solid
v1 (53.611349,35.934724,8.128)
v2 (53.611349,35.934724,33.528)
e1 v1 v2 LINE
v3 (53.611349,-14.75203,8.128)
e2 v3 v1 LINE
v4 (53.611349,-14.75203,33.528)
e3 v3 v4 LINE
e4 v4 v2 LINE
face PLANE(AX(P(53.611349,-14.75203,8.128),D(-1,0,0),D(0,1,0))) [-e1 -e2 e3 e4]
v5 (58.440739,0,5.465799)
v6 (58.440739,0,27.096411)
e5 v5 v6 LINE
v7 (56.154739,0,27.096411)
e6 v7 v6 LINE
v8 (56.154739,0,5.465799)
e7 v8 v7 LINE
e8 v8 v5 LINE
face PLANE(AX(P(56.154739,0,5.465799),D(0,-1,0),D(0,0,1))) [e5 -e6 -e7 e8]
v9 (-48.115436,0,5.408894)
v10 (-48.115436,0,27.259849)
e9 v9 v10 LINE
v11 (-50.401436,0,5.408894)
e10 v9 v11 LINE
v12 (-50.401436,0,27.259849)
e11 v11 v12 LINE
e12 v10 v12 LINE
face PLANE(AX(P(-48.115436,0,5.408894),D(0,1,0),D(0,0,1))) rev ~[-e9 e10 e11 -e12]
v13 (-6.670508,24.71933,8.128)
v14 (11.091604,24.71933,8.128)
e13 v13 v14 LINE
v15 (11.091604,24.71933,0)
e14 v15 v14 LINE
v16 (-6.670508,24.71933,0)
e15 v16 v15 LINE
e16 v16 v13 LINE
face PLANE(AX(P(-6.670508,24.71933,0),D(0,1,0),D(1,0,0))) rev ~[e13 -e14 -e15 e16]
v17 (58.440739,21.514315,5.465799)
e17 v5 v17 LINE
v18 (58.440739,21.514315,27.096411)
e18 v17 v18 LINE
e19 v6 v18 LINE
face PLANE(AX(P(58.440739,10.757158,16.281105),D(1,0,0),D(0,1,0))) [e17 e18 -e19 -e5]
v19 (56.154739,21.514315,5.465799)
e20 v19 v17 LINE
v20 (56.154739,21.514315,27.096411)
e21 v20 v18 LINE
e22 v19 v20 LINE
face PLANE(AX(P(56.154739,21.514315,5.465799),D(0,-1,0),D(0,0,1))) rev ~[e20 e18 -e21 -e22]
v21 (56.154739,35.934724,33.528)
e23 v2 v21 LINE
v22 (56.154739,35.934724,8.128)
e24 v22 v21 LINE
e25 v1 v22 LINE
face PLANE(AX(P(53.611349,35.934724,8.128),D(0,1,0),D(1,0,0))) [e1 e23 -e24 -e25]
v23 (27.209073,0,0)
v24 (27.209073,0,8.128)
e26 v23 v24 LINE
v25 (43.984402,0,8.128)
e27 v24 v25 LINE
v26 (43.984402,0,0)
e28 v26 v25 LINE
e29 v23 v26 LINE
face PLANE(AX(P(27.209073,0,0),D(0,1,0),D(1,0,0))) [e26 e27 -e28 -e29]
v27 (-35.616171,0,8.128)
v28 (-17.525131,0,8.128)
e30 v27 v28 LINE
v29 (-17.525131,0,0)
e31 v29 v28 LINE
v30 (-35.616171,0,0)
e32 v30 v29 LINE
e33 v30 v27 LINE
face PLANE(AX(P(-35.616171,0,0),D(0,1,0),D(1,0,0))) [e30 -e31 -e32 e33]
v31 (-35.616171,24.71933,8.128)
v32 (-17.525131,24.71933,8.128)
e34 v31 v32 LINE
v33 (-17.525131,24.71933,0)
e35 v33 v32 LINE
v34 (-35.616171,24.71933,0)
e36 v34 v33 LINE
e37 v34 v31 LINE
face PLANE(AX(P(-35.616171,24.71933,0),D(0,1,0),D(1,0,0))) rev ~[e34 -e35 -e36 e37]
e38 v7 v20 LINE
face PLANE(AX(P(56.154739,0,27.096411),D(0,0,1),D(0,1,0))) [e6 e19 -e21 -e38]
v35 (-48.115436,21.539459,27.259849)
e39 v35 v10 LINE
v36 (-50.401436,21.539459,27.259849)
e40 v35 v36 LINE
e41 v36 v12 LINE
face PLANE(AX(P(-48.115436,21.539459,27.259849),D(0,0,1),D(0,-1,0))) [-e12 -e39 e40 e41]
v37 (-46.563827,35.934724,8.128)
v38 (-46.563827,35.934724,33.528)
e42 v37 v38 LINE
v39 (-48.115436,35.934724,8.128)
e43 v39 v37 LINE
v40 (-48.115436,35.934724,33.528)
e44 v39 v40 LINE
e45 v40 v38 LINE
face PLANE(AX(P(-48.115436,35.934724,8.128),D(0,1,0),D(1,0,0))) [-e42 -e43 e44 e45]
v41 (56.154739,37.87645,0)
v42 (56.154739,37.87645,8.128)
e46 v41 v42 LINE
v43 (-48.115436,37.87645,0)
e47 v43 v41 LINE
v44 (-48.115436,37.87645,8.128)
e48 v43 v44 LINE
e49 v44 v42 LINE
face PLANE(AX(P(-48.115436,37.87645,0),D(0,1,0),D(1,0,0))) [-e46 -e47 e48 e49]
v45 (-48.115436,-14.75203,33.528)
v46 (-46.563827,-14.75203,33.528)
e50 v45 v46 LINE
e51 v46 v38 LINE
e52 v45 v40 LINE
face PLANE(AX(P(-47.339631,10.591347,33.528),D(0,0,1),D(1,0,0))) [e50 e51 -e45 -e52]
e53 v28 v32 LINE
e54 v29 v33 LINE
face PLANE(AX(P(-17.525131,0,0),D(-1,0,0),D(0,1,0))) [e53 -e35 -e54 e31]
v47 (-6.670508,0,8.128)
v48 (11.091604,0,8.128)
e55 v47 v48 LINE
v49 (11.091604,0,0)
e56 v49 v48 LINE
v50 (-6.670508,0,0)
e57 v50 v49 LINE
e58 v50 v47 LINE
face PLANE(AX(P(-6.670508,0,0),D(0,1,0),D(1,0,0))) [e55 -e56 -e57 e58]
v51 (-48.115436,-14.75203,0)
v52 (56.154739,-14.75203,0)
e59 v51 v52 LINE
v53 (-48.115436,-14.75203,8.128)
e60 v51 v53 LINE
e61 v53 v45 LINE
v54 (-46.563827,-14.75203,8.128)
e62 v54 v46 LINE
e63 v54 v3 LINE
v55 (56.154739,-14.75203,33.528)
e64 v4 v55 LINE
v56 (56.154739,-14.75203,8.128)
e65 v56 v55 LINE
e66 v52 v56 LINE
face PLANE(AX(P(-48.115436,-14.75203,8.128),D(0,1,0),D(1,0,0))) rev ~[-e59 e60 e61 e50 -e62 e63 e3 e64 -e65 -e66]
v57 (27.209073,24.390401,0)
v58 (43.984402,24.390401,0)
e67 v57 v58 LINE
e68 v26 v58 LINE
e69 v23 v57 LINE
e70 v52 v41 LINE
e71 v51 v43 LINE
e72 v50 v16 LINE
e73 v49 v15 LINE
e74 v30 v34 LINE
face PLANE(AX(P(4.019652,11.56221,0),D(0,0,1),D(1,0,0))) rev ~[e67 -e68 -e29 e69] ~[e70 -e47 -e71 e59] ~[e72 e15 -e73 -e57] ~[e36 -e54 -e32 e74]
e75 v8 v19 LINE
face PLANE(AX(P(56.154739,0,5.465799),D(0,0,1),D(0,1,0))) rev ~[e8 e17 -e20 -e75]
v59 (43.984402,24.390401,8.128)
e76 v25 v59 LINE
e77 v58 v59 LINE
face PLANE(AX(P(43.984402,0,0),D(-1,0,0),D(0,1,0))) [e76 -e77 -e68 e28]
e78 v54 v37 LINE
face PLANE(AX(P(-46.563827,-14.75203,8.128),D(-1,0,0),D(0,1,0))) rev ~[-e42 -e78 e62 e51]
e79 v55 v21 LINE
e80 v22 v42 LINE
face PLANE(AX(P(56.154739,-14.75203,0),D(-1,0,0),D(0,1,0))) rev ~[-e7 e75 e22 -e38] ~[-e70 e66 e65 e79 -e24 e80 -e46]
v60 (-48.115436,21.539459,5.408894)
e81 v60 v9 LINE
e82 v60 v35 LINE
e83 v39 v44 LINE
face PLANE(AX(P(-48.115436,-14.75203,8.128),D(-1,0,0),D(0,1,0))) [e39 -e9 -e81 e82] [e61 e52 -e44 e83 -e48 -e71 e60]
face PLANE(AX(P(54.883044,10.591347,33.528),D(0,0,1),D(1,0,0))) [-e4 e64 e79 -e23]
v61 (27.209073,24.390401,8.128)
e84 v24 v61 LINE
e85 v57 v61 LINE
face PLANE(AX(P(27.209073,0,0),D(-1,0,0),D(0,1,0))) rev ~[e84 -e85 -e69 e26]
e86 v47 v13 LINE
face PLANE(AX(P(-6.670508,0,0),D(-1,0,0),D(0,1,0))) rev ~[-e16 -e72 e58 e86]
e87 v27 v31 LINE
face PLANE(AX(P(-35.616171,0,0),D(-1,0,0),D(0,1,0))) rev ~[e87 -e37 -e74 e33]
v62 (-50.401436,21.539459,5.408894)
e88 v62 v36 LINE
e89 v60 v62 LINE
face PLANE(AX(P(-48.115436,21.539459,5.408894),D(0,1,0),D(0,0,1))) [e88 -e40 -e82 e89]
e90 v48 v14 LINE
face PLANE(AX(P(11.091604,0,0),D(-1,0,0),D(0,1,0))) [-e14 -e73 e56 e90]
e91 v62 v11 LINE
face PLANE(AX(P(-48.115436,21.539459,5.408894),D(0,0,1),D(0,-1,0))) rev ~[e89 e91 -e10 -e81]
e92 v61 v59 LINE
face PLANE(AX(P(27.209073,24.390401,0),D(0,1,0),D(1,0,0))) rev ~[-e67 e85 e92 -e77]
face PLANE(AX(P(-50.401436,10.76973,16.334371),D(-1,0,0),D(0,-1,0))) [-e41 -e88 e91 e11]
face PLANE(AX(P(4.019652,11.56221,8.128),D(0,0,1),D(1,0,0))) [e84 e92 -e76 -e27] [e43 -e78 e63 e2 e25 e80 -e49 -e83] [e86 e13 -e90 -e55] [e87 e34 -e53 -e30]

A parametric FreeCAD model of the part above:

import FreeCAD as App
import Part
import Sketcher
Q = App.Units.Quantity

doc = App.newDocument("Part")
body = doc.addObject("PartDesign::Body", "Body")

# Sketch on XY plane
sketch1 = body.newObject("Sketcher::SketchObject", "Sketch")
sketch1.AttachmentSupport = (doc.getObject("XY_Plane"), [""])
sketch1.MapMode = "FlatFace"
sketch1.addGeometry(Part.LineSegment(App.Vector(-48.115436, 37.87645, 0), App.Vector(-48.115436, -14.75203, 0)), False)
sketch1.addGeometry(Part.LineSegment(App.Vector(-48.115436, -14.75203, 0), App.Vector(56.154739, -14.75203, 0)), False)
sketch1.addGeometry(Part.LineSegment(App.Vector(56.154739, -14.75203, 0), App.Vector(56.154739, 37.87645, 0)), False)
sketch1.addGeometry(Part.LineSegment(App.Vector(56.154739, 37.87645, 0), App.Vector(-48.115436, 37.87645, 0)), False)
sketch1.addGeometry(Part.LineSegment(App.Vector(43.984402, 0, 0), App.Vector(27.209073, 0, 0)), False)
sketch1.addGeometry(Part.LineSegment(App.Vector(27.209073, 0, 0), App.Vector(27.209073, 24.390401, 0)), False)
sketch1.addGeometry(Part.LineSegment(App.Vector(27.209073, 24.390401, 0), App.Vector(43.984402, 24.390401, 0)), False)
sketch1.addGeometry(Part.LineSegment(App.Vector(43.984402, 24.390401, 0), App.Vector(43.984402, 0, 0)), False)
sketch1.addGeometry(Part.LineSegment(App.Vector(-17.525131, 0, 0), App.Vector(-35.616171, 0, 0)), False)
sketch1.addGeometry(Part.LineSegment(App.Vector(-35.616171, 0, 0), App.Vector(-35.616171, 24.71933, 0)), False)
sketch1.addGeometry(Part.LineSegment(App.Vector(-35.616171, 24.71933, 0), App.Vector(-17.525131, 24.71933, 0)), False)
sketch1.addGeometry(Part.LineSegment(App.Vector(-17.525131, 24.71933, 0), App.Vector(-17.525131, 0, 0)), False)
sketch1.addGeometry(Part.LineSegment(App.Vector(11.091604, 0, 0), App.Vector(-6.670508, 0, 0)), False)
sketch1.addGeometry(Part.LineSegment(App.Vector(-6.670508, 0, 0), App.Vector(-6.670508, 24.71933, 0)), False)
sketch1.addGeometry(Part.LineSegment(App.Vector(-6.670508, 24.71933, 0), App.Vector(11.091604, 24.71933, 0)), False)
sketch1.addGeometry(Part.LineSegment(App.Vector(11.091604, 24.71933, 0), App.Vector(11.091604, 0, 0)), False)
sketch1.addConstraint(Sketcher.Constraint("Coincident", 0, 2, 1, 1))
sketch1.addConstraint(Sketcher.Constraint("Coincident", 1, 2, 2, 1))
sketch1.addConstraint(Sketcher.Constraint("Coincident", 2, 2, 3, 1))
sketch1.addConstraint(Sketcher.Constraint("Coincident", 3, 2, 0, 1))
sketch1.addConstraint(Sketcher.Constraint("Coincident", 4, 2, 5, 1))
sketch1.addConstraint(Sketcher.Constraint("Coincident", 5, 2, 6, 1))
sketch1.addConstraint(Sketcher.Constraint("Coincident", 6, 2, 7, 1))
sketch1.addConstraint(Sketcher.Constraint("Coincident", 7, 2, 4, 1))
sketch1.addConstraint(Sketcher.Constraint("Coincident", 8, 2, 9, 1))
sketch1.addConstraint(Sketcher.Constraint("Coincident", 9, 2, 10, 1))
sketch1.addConstraint(Sketcher.Constraint("Coincident", 10, 2, 11, 1))
sketch1.addConstraint(Sketcher.Constraint("Coincident", 11, 2, 8, 1))
sketch1.addConstraint(Sketcher.Constraint("Coincident", 12, 2, 13, 1))
sketch1.addConstraint(Sketcher.Constraint("Coincident", 13, 2, 14, 1))
sketch1.addConstraint(Sketcher.Constraint("Coincident", 14, 2, 15, 1))
sketch1.addConstraint(Sketcher.Constraint("Coincident", 15, 2, 12, 1))
sketch1.addConstraint(Sketcher.Constraint("Vertical", 0))
sketch1.addConstraint(Sketcher.Constraint("Horizontal", 1))
sketch1.addConstraint(Sketcher.Constraint("Vertical", 2))
sketch1.addConstraint(Sketcher.Constraint("Horizontal", 3))
sketch1.addConstraint(Sketcher.Constraint("Horizontal", 4))
sketch1.addConstraint(Sketcher.Constraint("Vertical", 5))
sketch1.addConstraint(Sketcher.Constraint("Horizontal", 6))
sketch1.addConstraint(Sketcher.Constraint("Vertical", 7))
sketch1.addConstraint(Sketcher.Constraint("Horizontal", 8))
sketch1.addConstraint(Sketcher.Constraint("Vertical", 9))
sketch1.addConstraint(Sketcher.Constraint("Horizontal", 10))
sketch1.addConstraint(Sketcher.Constraint("Vertical", 11))
sketch1.addConstraint(Sketcher.Constraint("Horizontal", 12))
sketch1.addConstraint(Sketcher.Constraint("Vertical", 13))
sketch1.addConstraint(Sketcher.Constraint("Horizontal", 14))
sketch1.addConstraint(Sketcher.Constraint("Vertical", 15))
sketch1.addConstraint(Sketcher.Constraint("PointOnObject", 4, 2, -1))
sketch1.addConstraint(Sketcher.Constraint("PointOnObject", 8, 2, -1))
sketch1.addConstraint(Sketcher.Constraint("PointOnObject", 12, 2, -1))
sketch1.addConstraint(Sketcher.Constraint("Horizontal", 10, 2, 13, 2))
sketch1.addConstraint(Sketcher.Constraint("DistanceY", 5, 1, 5, 2, 24.390401))
sketch1.addConstraint(Sketcher.Constraint("DistanceX", 4, 2, 4, 1, 16.775329))
sketch1.addConstraint(Sketcher.Constraint("DistanceX", 8, 2, 8, 1, 18.09104))
sketch1.addConstraint(Sketcher.Constraint("DistanceX", 12, 2, 12, 1, 17.762112))
sketch1.addConstraint(Sketcher.Constraint("DistanceY", 0, 2, 0, 1, 52.62848))
sketch1.addConstraint(Sketcher.Constraint("DistanceY", 9, 1, 9, 2, 24.71933))
sketch1.addConstraint(Sketcher.Constraint("DistanceX", -1, 1, 6, 2, 43.984402))
sketch1.addConstraint(Sketcher.Constraint("DistanceX", 1, 1, 1, 2, 104.270175))
sketch1.addConstraint(Sketcher.Constraint("DistanceY", 0, 2, -1, 1, 14.75203))
sketch1.addConstraint(Sketcher.Constraint("DistanceX", -1, 1, 1, 2, 56.154739))
sketch1.addConstraint(Sketcher.Constraint("DistanceX", 8, 2, -1, 1, 35.616171))
sketch1.addConstraint(Sketcher.Constraint("DistanceX", 12, 2, -1, 1, 6.670508))
pad1 = body.newObject("PartDesign::Pad", "Pad")
pad1.Profile = sketch1
pad1.Length = Q("0.32 in")

# Sketch on XY plane
sketch2 = body.newObject("Sketcher::SketchObject", "Sketch001")
sketch2.AttachmentSupport = (doc.getObject("XY_Plane"), [""])
sketch2.MapMode = "FlatFace"
sketch2.AttachmentOffset = App.Placement(App.Vector(0, 0, 0.32 * 25.4), App.Rotation())
sketch2.addGeometry(Part.LineSegment(App.Vector(-48.115436, 35.934724, 0), App.Vector(-48.115436, -14.75203, 0)), False)
sketch2.addGeometry(Part.LineSegment(App.Vector(-48.115436, -14.75203, 0), App.Vector(-46.563827, -14.75203, 0)), False)
sketch2.addGeometry(Part.LineSegment(App.Vector(-46.563827, -14.75203, 0), App.Vector(-46.563827, 35.934724, 0)), False)
sketch2.addGeometry(Part.LineSegment(App.Vector(-46.563827, 35.934724, 0), App.Vector(-48.115436, 35.934724, 0)), False)
sketch2.addGeometry(Part.LineSegment(App.Vector(53.611349, 35.934724, 0), App.Vector(53.611349, -14.75203, 0)), False)
sketch2.addGeometry(Part.LineSegment(App.Vector(53.611349, -14.75203, 0), App.Vector(56.154739, -14.75203, 0)), False)
sketch2.addGeometry(Part.LineSegment(App.Vector(56.154739, -14.75203, 0), App.Vector(56.154739, 35.934724, 0)), False)
sketch2.addGeometry(Part.LineSegment(App.Vector(56.154739, 35.934724, 0), App.Vector(53.611349, 35.934724, 0)), False)
sketch2.addConstraint(Sketcher.Constraint("Coincident", 0, 2, 1, 1))
sketch2.addConstraint(Sketcher.Constraint("Coincident", 1, 2, 2, 1))
sketch2.addConstraint(Sketcher.Constraint("Coincident", 2, 2, 3, 1))
sketch2.addConstraint(Sketcher.Constraint("Coincident", 3, 2, 0, 1))
sketch2.addConstraint(Sketcher.Constraint("Coincident", 4, 2, 5, 1))
sketch2.addConstraint(Sketcher.Constraint("Coincident", 5, 2, 6, 1))
sketch2.addConstraint(Sketcher.Constraint("Coincident", 6, 2, 7, 1))
sketch2.addConstraint(Sketcher.Constraint("Coincident", 7, 2, 4, 1))
sketch2.addConstraint(Sketcher.Constraint("Vertical", 0))
sketch2.addConstraint(Sketcher.Constraint("Horizontal", 1))
sketch2.addConstraint(Sketcher.Constraint("Vertical", 2))
sketch2.addConstraint(Sketcher.Constraint("Horizontal", 3))
sketch2.addConstraint(Sketcher.Constraint("Vertical", 4))
sketch2.addConstraint(Sketcher.Constraint("Horizontal", 5))
sketch2.addConstraint(Sketcher.Constraint("Vertical", 6))
sketch2.addConstraint(Sketcher.Constraint("Horizontal", 7))
sketch2.addConstraint(Sketcher.Constraint("Horizontal", 1, 2, 4, 2))
sketch2.addConstraint(Sketcher.Constraint("Horizontal", 3, 2, 6, 2))
sketch2.addConstraint(Sketcher.Constraint("DistanceX", 1, 1, 1, 2, 1.551609))
sketch2.addConstraint(Sketcher.Constraint("DistanceX", 5, 1, 5, 2, 2.54339))
sketch2.addConstraint(Sketcher.Constraint("DistanceY", 0, 2, 0, 1, 50.686754))
sketch2.addConstraint(Sketcher.Constraint("DistanceY", 0, 2, -1, 1, 14.75203))
sketch2.addConstraint(Sketcher.Constraint("DistanceX", -1, 1, 4, 2, 53.611349))
sketch2.addConstraint(Sketcher.Constraint("DistanceX", 0, 2, -1, 1, 48.115436))
pad2 = body.newObject("PartDesign::Pad", "Pad001")
pad2.Profile = sketch2
pad2.Length = Q("1 in")

# Sketch on YZ plane
sketch3 = body.newObject("Sketcher::SketchObject", "Sketch002")
sketch3.AttachmentSupport = (doc.getObject("YZ_Plane"), [""])
sketch3.MapMode = "FlatFace"
sketch3.AttachmentOffset = App.Placement(App.Vector(0, 0, 56.154739), App.Rotation())
sketch3.addGeometry(Part.LineSegment(App.Vector(0, 27.096411, 0), App.Vector(0, 5.465799, 0)), False)
sketch3.addGeometry(Part.LineSegment(App.Vector(0, 5.465799, 0), App.Vector(21.514315, 5.465799, 0)), False)
sketch3.addGeometry(Part.LineSegment(App.Vector(21.514315, 5.465799, 0), App.Vector(21.514315, 27.096411, 0)), False)
sketch3.addGeometry(Part.LineSegment(App.Vector(21.514315, 27.096411, 0), App.Vector(0, 27.096411, 0)), False)
sketch3.addConstraint(Sketcher.Constraint("Coincident", 0, 2, 1, 1))
sketch3.addConstraint(Sketcher.Constraint("Coincident", 1, 2, 2, 1))
sketch3.addConstraint(Sketcher.Constraint("Coincident", 2, 2, 3, 1))
sketch3.addConstraint(Sketcher.Constraint("Coincident", 3, 2, 0, 1))
sketch3.addConstraint(Sketcher.Constraint("Vertical", 0))
sketch3.addConstraint(Sketcher.Constraint("Horizontal", 1))
sketch3.addConstraint(Sketcher.Constraint("Vertical", 2))
sketch3.addConstraint(Sketcher.Constraint("Horizontal", 3))
sketch3.addConstraint(Sketcher.Constraint("PointOnObject", 0, 2, -2))
sketch3.addConstraint(Sketcher.Constraint("DistanceY", 0, 2, 0, 1, 21.630612))
sketch3.addConstraint(Sketcher.Constraint("DistanceY", -1, 1, 0, 2, 5.465799))
sketch3.addConstraint(Sketcher.Constraint("DistanceX", 1, 1, 1, 2, 21.514315))
pad3 = body.newObject("PartDesign::Pad", "Pad002")
pad3.Profile = sketch3
pad3.Length = Q("0.09 in")

# Sketch on YZ plane
sketch4 = body.newObject("Sketcher::SketchObject", "Sketch003")
sketch4.AttachmentSupport = (doc.getObject("YZ_Plane"), [""])
sketch4.MapMode = "FlatFace"
sketch4.AttachmentOffset = App.Placement(App.Vector(0, 0, -48.115436), App.Rotation())
sketch4.addGeometry(Part.LineSegment(App.Vector(21.539459, 27.259849, 0), App.Vector(21.539459, 5.408894, 0)), False)
sketch4.addGeometry(Part.LineSegment(App.Vector(21.539459, 5.408894, 0), App.Vector(0, 5.408894, 0)), False)
sketch4.addGeometry(Part.LineSegment(App.Vector(0, 5.408894, 0), App.Vector(0, 27.259849, 0)), False)
sketch4.addGeometry(Part.LineSegment(App.Vector(0, 27.259849, 0), App.Vector(21.539459, 27.259849, 0)), False)
sketch4.addConstraint(Sketcher.Constraint("Coincident", 0, 2, 1, 1))
sketch4.addConstraint(Sketcher.Constraint("Coincident", 1, 2, 2, 1))
sketch4.addConstraint(Sketcher.Constraint("Coincident", 2, 2, 3, 1))
sketch4.addConstraint(Sketcher.Constraint("Coincident", 3, 2, 0, 1))
sketch4.addConstraint(Sketcher.Constraint("Vertical", 0))
sketch4.addConstraint(Sketcher.Constraint("Horizontal", 1))
sketch4.addConstraint(Sketcher.Constraint("Vertical", 2))
sketch4.addConstraint(Sketcher.Constraint("Horizontal", 3))
sketch4.addConstraint(Sketcher.Constraint("PointOnObject", 1, 2, -2))
sketch4.addConstraint(Sketcher.Constraint("DistanceX", 1, 2, 1, 1, 21.539459))
sketch4.addConstraint(Sketcher.Constraint("DistanceY", 0, 2, 0, 1, 21.850955))
sketch4.addConstraint(Sketcher.Constraint("DistanceY", -1, 1, 2, 2, 27.259849))
pad4 = body.newObject("PartDesign::Pad", "Pad003")
pad4.Profile = sketch4
pad4.Length = Q("0.09 in")
pad4.Reversed = True

doc.recompute()
